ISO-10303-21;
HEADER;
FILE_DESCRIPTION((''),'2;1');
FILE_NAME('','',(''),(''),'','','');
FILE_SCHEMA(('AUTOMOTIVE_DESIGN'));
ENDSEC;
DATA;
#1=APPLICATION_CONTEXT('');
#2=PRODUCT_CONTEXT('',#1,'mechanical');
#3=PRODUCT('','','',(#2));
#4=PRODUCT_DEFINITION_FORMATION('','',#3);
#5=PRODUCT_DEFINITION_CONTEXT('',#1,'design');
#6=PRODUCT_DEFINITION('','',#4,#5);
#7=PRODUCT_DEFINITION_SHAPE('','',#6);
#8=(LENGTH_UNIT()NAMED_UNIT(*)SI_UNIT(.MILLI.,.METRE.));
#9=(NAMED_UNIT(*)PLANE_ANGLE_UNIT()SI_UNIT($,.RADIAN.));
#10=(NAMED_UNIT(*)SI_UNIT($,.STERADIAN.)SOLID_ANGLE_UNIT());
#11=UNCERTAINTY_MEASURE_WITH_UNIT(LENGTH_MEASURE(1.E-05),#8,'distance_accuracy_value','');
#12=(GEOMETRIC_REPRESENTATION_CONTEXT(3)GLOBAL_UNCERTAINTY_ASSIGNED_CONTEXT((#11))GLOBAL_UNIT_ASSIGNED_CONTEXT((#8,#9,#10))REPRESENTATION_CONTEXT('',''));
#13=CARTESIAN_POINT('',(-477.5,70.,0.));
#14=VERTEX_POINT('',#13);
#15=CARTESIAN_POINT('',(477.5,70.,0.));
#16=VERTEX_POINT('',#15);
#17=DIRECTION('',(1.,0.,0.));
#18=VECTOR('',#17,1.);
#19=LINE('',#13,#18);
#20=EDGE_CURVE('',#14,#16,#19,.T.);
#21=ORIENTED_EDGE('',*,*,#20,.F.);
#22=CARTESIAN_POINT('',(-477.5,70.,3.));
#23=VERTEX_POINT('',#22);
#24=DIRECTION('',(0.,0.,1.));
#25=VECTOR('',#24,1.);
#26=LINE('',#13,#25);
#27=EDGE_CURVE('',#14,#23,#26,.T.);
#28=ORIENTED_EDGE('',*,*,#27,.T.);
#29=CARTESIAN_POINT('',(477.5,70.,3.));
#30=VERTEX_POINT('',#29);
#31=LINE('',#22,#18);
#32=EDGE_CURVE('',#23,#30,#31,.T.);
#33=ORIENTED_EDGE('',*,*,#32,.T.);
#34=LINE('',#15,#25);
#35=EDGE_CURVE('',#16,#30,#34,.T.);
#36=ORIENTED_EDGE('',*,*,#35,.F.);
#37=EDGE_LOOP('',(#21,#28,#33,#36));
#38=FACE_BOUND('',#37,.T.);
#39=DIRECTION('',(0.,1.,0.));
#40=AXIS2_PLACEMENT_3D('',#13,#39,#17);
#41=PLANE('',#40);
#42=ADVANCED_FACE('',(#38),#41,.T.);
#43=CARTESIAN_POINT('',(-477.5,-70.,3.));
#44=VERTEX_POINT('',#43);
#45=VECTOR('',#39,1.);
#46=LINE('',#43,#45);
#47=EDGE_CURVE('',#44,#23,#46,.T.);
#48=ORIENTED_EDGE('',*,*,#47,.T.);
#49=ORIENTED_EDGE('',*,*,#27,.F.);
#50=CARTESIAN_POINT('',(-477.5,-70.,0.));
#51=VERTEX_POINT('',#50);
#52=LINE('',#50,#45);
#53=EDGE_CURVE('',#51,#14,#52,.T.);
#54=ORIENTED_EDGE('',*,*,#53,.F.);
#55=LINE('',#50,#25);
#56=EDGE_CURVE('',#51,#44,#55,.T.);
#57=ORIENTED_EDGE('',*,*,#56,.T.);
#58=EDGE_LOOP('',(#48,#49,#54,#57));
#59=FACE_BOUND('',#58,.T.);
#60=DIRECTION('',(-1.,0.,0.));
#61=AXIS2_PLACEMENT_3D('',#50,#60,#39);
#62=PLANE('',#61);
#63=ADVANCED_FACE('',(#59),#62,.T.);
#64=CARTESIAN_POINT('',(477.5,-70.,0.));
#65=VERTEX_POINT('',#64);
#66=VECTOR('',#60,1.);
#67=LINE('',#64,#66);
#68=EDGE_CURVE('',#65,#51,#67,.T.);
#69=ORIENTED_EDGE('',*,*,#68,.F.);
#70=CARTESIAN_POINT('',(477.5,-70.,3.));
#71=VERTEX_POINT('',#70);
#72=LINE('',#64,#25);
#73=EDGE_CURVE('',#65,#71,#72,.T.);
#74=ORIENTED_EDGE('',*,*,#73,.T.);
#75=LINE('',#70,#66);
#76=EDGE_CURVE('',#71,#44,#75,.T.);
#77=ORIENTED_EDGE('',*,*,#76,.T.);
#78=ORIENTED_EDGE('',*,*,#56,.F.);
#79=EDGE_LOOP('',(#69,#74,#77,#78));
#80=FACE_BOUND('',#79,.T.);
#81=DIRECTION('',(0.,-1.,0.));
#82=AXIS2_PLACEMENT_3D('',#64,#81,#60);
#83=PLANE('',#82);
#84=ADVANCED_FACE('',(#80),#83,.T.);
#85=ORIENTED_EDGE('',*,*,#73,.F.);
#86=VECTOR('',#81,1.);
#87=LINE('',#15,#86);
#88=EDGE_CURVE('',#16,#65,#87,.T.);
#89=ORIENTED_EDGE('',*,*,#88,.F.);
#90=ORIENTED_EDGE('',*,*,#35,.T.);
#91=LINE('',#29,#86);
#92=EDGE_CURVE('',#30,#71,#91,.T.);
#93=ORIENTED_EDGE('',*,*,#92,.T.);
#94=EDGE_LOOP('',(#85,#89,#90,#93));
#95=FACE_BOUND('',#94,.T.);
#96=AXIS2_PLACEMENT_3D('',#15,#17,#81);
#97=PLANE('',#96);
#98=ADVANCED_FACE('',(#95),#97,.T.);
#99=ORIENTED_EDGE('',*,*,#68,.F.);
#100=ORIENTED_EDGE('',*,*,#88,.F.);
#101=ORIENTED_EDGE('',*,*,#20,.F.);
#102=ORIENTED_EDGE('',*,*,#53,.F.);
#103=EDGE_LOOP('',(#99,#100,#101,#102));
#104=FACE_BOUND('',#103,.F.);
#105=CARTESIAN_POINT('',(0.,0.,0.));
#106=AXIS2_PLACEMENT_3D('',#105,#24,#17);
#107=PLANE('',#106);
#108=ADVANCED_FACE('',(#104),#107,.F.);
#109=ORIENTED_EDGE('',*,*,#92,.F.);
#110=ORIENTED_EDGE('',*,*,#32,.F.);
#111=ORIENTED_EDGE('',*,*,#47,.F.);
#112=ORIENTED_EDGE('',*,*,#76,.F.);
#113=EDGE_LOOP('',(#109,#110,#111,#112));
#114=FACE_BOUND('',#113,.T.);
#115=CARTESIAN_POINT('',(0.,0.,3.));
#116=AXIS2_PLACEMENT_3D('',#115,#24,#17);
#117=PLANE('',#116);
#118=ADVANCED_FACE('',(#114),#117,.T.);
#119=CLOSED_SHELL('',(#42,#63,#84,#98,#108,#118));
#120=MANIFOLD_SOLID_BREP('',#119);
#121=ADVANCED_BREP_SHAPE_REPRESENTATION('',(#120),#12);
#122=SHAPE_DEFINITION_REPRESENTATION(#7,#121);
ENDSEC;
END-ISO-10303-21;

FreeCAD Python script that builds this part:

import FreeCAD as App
import Part
import Sketcher
from FreeCAD import Vector
Q = App.Units.Quantity


def add_polygon(sketch, points):
    """Adds a closed chain of lines whose ends are joined by coincident constraints."""
    first, n = sketch.GeometryCount, len(points)
    for a, b in zip(points, points[1:] + points[:1]):
        sketch.addGeometry(Part.LineSegment(App.Vector(*a, 0), App.Vector(*b, 0)), False)
    for i in range(n):
        sketch.addConstraint(Sketcher.Constraint("Coincident", first + i, 2, first + (i + 1) % n, 1))

doc = App.newDocument("Part")
body = doc.addObject("PartDesign::Body", "Body")

sketch1 = body.newObject("Sketcher::SketchObject", "Sketch")
sketch1.AttachmentSupport = (doc.getObject("XY_Plane"), [""])
sketch1.MapMode = "FlatFace"
add_polygon(sketch1, [(-478, -70), (478, -70), (478, 70), (-478, 70)])
sketch1.addConstraint(Sketcher.Constraint("Horizontal", 0))
sketch1.addConstraint(Sketcher.Constraint("Vertical", 1))
sketch1.addConstraint(Sketcher.Constraint("Horizontal", 2))
sketch1.addConstraint(Sketcher.Constraint("Vertical", 3))
sketch1.addConstraint(Sketcher.Constraint("Symmetric", 0, 2, 2, 2, -1, 1))
sketch1.addConstraint(Sketcher.Constraint("DistanceX", 0, 1, 0, 2, Q("955 mm")))
sketch1.addConstraint(Sketcher.Constraint("DistanceY", 1, 1, 1, 2, Q("140 mm")))
pad1 = body.newObject("PartDesign::Pad", "Pad")
pad1.Profile = sketch1
pad1.Length = 3

doc.recompute()
